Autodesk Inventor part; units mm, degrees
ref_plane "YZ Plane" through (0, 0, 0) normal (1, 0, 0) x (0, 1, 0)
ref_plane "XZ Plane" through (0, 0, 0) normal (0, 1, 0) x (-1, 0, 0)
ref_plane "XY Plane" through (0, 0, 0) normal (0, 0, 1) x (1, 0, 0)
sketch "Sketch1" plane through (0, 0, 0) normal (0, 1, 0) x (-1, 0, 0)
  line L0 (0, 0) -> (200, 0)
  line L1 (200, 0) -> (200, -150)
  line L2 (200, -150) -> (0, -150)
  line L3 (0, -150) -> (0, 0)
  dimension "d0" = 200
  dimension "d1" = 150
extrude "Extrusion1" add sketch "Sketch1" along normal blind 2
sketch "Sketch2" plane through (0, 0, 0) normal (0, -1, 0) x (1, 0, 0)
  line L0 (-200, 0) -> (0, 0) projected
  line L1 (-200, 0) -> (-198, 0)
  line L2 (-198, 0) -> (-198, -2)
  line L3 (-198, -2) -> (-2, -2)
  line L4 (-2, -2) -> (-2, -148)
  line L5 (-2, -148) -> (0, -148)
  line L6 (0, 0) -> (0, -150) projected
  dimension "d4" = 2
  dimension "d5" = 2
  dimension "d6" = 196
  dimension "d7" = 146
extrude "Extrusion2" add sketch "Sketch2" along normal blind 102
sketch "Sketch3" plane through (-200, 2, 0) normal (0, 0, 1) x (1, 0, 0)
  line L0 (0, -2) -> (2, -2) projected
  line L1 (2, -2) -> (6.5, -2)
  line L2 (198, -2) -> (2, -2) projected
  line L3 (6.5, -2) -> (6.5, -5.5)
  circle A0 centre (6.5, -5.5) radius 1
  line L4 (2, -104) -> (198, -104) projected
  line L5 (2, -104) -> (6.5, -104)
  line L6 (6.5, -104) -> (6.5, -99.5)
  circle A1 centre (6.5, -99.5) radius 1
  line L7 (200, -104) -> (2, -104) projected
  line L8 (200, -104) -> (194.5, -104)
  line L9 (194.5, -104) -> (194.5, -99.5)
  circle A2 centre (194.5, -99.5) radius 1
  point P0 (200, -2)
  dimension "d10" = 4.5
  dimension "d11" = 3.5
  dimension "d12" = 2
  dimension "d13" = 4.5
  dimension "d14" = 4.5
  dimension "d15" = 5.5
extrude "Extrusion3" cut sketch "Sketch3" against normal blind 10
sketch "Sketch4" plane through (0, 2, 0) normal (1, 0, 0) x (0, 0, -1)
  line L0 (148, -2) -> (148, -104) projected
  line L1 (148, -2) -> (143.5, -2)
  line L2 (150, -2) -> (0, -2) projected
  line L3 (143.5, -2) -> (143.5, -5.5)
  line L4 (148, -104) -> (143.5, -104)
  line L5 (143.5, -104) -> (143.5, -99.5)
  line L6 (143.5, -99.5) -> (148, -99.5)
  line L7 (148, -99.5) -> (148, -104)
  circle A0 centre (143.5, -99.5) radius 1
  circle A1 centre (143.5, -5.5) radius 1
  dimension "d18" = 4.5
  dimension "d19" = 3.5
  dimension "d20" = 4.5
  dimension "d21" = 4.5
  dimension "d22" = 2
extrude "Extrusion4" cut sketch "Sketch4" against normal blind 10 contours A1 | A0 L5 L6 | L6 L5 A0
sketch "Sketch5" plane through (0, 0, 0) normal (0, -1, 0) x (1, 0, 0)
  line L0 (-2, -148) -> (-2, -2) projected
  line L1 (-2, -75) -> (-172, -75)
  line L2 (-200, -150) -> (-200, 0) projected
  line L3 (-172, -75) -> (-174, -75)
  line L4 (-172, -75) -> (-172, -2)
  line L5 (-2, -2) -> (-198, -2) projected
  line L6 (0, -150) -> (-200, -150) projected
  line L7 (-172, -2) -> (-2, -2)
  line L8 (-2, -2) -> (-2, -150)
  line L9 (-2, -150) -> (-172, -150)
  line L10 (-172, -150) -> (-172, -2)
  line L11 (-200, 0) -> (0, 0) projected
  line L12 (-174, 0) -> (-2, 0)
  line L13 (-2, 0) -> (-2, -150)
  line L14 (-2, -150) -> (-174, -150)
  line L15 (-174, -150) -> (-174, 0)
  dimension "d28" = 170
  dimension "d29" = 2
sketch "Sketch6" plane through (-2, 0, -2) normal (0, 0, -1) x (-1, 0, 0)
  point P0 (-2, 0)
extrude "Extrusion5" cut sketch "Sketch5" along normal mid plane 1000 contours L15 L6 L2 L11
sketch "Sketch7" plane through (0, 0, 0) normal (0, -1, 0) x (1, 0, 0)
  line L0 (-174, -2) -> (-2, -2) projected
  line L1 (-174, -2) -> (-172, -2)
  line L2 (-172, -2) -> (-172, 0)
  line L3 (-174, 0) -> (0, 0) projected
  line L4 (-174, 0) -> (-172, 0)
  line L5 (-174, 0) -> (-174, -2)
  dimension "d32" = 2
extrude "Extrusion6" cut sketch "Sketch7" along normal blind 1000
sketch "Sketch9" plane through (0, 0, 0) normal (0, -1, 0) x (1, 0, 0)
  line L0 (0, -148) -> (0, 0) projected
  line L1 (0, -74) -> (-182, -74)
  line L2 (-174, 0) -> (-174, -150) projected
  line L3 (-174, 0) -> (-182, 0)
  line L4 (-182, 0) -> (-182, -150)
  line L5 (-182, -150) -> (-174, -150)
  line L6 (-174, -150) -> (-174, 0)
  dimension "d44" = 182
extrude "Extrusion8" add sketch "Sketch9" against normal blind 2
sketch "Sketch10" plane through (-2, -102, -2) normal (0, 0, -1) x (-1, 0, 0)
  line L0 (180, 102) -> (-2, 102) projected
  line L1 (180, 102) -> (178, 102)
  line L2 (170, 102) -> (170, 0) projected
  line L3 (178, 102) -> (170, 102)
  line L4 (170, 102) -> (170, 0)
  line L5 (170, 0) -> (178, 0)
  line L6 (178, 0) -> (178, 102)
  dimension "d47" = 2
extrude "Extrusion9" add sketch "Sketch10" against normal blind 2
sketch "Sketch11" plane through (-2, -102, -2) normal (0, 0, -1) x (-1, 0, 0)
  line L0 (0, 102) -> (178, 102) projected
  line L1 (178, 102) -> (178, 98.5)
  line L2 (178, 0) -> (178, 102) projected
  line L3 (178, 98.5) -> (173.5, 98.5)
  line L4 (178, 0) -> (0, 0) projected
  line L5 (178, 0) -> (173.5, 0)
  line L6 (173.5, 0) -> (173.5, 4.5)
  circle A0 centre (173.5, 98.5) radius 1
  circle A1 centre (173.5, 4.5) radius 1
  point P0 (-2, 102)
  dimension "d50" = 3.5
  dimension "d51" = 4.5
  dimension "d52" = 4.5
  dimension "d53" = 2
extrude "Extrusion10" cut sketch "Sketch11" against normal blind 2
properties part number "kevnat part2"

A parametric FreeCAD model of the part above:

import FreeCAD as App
import Part
import Sketcher

V = App.Vector
Q = App.Units.Quantity


def add_polygon(sketch, points):
    """Adds a closed chain of lines whose ends are joined by coincident constraints."""
    first, n = sketch.GeometryCount, len(points)
    for a, b in zip(points, points[1:] + points[:1]):
        sketch.addGeometry(Part.LineSegment(App.Vector(*a, 0), App.Vector(*b, 0)), False)
    for i in range(n):
        sketch.addConstraint(Sketcher.Constraint("Coincident", first + i, 2, first + (i + 1) % n, 1))

doc = App.newDocument("Part")
body = doc.addObject("PartDesign::Body", "Body")

sketch1 = body.newObject("Sketcher::SketchObject", "Sketch")
sketch1.AttachmentSupport = (doc.getObject("XZ_Plane"), [""])
sketch1.MapMode = "FlatFace"
add_polygon(sketch1, [(-200, 0), (0, 0), (0, -150), (-200, -150)])
sketch1.addConstraint(Sketcher.Constraint("Horizontal", 0))
sketch1.addConstraint(Sketcher.Constraint("Vertical", 1))
sketch1.addConstraint(Sketcher.Constraint("Horizontal", 2))
sketch1.addConstraint(Sketcher.Constraint("Vertical", 3))
sketch1.addConstraint(Sketcher.Constraint("Coincident", 0, 2, -1, 1))
sketch1.addConstraint(Sketcher.Constraint("DistanceX", 0, 1, 0, 2, Q("200 mm")))
sketch1.addConstraint(Sketcher.Constraint("DistanceY", 1, 2, 1, 1, Q("150 mm")))
pad1 = body.newObject("PartDesign::Pad", "Pad")
pad1.Profile = sketch1
pad1.Length = 2
pad1.Reversed = True

sketch2 = body.newObject("Sketcher::SketchObject", "Sketch001")
sketch2.AttachmentSupport = (doc.getObject("XZ_Plane"), [""])
sketch2.MapMode = "FlatFace"
add_polygon(sketch2, [(0, 0), (-198, 0), (-198, -2), (-2, -2), (-2, -148), (0, -148)])
sketch2.addConstraint(Sketcher.Constraint("Horizontal", 0))
sketch2.addConstraint(Sketcher.Constraint("Vertical", 1))
sketch2.addConstraint(Sketcher.Constraint("Horizontal", 2))
sketch2.addConstraint(Sketcher.Constraint("Vertical", 3))
sketch2.addConstraint(Sketcher.Constraint("Horizontal", 4))
sketch2.addConstraint(Sketcher.Constraint("Vertical", 5))
sketch2.addConstraint(Sketcher.Constraint("Coincident", 5, 2, -1, 1))
sketch2.addConstraint(Sketcher.Constraint("Equal", 4, 1))
sketch2.addConstraint(Sketcher.Constraint("DistanceX", 2, 1, 2, 2, Q("196 mm")))
sketch2.addConstraint(Sketcher.Constraint("DistanceX", 4, 1, 4, 2, Q("2 mm")))
sketch2.addConstraint(Sketcher.Constraint("DistanceY", 3, 2, 3, 1, Q("146 mm")))
pad2 = body.newObject("PartDesign::Pad", "Pad001")
pad2.Profile = sketch2
pad2.Length = 102

sketch3 = body.newObject("Sketcher::SketchObject", "Sketch002")
sketch3.AttachmentSupport = (doc.getObject("XY_Plane"), [""])
sketch3.MapMode = "FlatFace"
sketch3.addGeometry(Part.Circle(V(-193.5, -3.5, 0), V(0, 0, 1), 1), False)
sketch3.addGeometry(Part.Circle(V(-5.5, -97.5, 0), V(0, 0, 1), 1), False)
sketch3.addGeometry(Part.Circle(V(-193.5, -97.5, 0), V(0, 0, 1), 1), False)
sketch3.addConstraint(Sketcher.Constraint("Equal", 0, 1))
sketch3.addConstraint(Sketcher.Constraint("Equal", 1, 2))
sketch3.addConstraint(Sketcher.Constraint("Horizontal", 1, 3, 2, 3))
sketch3.addConstraint(Sketcher.Constraint("Vertical", 0, 3, 2, 3))
sketch3.addConstraint(Sketcher.Constraint("Diameter", 0, Q("2 mm")))
sketch3.addConstraint(Sketcher.Constraint("DistanceY", 0, 3, -1, 1, Q("3.5 mm")))
sketch3.addConstraint(Sketcher.Constraint("DistanceX", 1, 3, -1, 1, Q("5.5 mm")))
sketch3.addConstraint(Sketcher.Constraint("DistanceX", 0, 3, 1, 3, Q("188 mm")))
sketch3.addConstraint(Sketcher.Constraint("DistanceY", 1, 3, 0, 3, Q("94 mm")))
pocket1 = body.newObject("PartDesign::Pocket", "Pocket")
pocket1.Profile = sketch3
pocket1.Length = 10

sketch4 = body.newObject("Sketcher::SketchObject", "Sketch003")
sketch4.AttachmentSupport = (doc.getObject("YZ_Plane"), [""])
sketch4.MapMode = "FlatFace"
sketch4.addGeometry(Part.Circle(V(-3.5, -143.5, 0), V(0, 0, 1), 1), False)
sketch4.addGeometry(Part.Circle(V(-97.5, -143.5, 0), V(0, 0, 1), 1), False)
sketch4.addConstraint(Sketcher.Constraint("Equal", 0, 1))
sketch4.addConstraint(Sketcher.Constraint("Horizontal", 0, 3, 1, 3))
sketch4.addConstraint(Sketcher.Constraint("Diameter", 0, Q("2 mm")))
sketch4.addConstraint(Sketcher.Constraint("DistanceX", 0, 3, -1, 1, Q("3.5 mm")))
sketch4.addConstraint(Sketcher.Constraint("DistanceX", 1, 3, 0, 3, Q("94 mm")))
sketch4.addConstraint(Sketcher.Constraint("DistanceY", 0, 3, -1, 1, Q("143.5 mm")))
pocket2 = body.newObject("PartDesign::Pocket", "Pocket001")
pocket2.Profile = sketch4
pocket2.Length = 10

sketch5 = body.newObject("Sketcher::SketchObject", "Sketch004")
sketch5.AttachmentSupport = (doc.getObject("XZ_Plane"), [""])
sketch5.MapMode = "FlatFace"
add_polygon(sketch5, [(-174, -150), (-174, 0), (-200, 0), (-200, -150)])
sketch5.addConstraint(Sketcher.Constraint("Vertical", 0))
sketch5.addConstraint(Sketcher.Constraint("Horizontal", 1))
sketch5.addConstraint(Sketcher.Constraint("Vertical", 2))
sketch5.addConstraint(Sketcher.Constraint("Horizontal", 3))
sketch5.addConstraint(Sketcher.Constraint("PointOnObject", 0, 2, -1))
sketch5.addConstraint(Sketcher.Constraint("DistanceX", 1, 2, 1, 1, Q("26 mm")))
sketch5.addConstraint(Sketcher.Constraint("DistanceY", 0, 1, 0, 2, Q("150 mm")))
sketch5.addConstraint(Sketcher.Constraint("DistanceX", 0, 2, -1, 1, Q("174 mm")))
pocket3 = body.newObject("PartDesign::Pocket", "Pocket002")
pocket3.Profile = sketch5
pocket3.Length = 1000
pocket3.Midplane = True

sketch6 = body.newObject("Sketcher::SketchObject", "Sketch005")
sketch6.AttachmentSupport = (doc.getObject("XZ_Plane"), [""])
sketch6.MapMode = "FlatFace"
add_polygon(sketch6, [(-174, 0), (-174, -2), (-172, -2), (-172, 0)])
sketch6.addConstraint(Sketcher.Constraint("Vertical", 0))
sketch6.addConstraint(Sketcher.Constraint("Horizontal", 1))
sketch6.addConstraint(Sketcher.Constraint("Vertical", 2))
sketch6.addConstraint(Sketcher.Constraint("Horizontal", 3))
sketch6.addConstraint(Sketcher.Constraint("PointOnObject", 2, 2, -1))
sketch6.addConstraint(Sketcher.Constraint("Equal", 3, 0))
sketch6.addConstraint(Sketcher.Constraint("DistanceX", 1, 1, 1, 2, Q("2 mm")))
sketch6.addConstraint(Sketcher.Constraint("DistanceX", 0, 2, -1, 1, Q("174 mm")))
pocket4 = body.newObject("PartDesign::Pocket", "Pocket003")
pocket4.Profile = sketch6
pocket4.Length = 1000
pocket4.Reversed = True

sketch7 = body.newObject("Sketcher::SketchObject", "Sketch006")
sketch7.AttachmentSupport = (doc.getObject("XZ_Plane"), [""])
sketch7.MapMode = "FlatFace"
add_polygon(sketch7, [(-174, -150), (-174, 0), (-182, 0), (-182, -150)])
sketch7.addConstraint(Sketcher.Constraint("Vertical", 0))
sketch7.addConstraint(Sketcher.Constraint("Horizontal", 1))
sketch7.addConstraint(Sketcher.Constraint("Vertical", 2))
sketch7.addConstraint(Sketcher.Constraint("Horizontal", 3))
sketch7.addConstraint(Sketcher.Constraint("PointOnObject", 0, 2, -1))
sketch7.addConstraint(Sketcher.Constraint("DistanceX", 1, 2, -1, 1, Q("182 mm")))
sketch7.addConstraint(Sketcher.Constraint("DistanceX", 1, 2, 1, 1, Q("8 mm")))
sketch7.addConstraint(Sketcher.Constraint("DistanceY", 0, 1, 0, 2, Q("150 mm")))
pad3 = body.newObject("PartDesign::Pad", "Pad002")
pad3.Profile = sketch7
pad3.Length = 2
pad3.Reversed = True

sketch8 = body.newObject("Sketcher::SketchObject", "Sketch007")
sketch8.AttachmentSupport = (doc.getObject("XY_Plane"), [""])
sketch8.MapMode = "FlatFace"
sketch8.AttachmentOffset = App.Placement(V(0, 0, -2), App.Rotation())
add_polygon(sketch8, [(-180, -102), (-180, 0), (-172, 0), (-172, -102)])
sketch8.addConstraint(Sketcher.Constraint("Vertical", 0))
sketch8.addConstraint(Sketcher.Constraint("Horizontal", 1))
sketch8.addConstraint(Sketcher.Constraint("Vertical", 2))
sketch8.addConstraint(Sketcher.Constraint("Horizontal", 3))
sketch8.addConstraint(Sketcher.Constraint("PointOnObject", 0, 2, -1))
sketch8.addConstraint(Sketcher.Constraint("DistanceX", 1, 1, 1, 2, Q("8 mm")))
sketch8.addConstraint(Sketcher.Constraint("DistanceY", 0, 1, 0, 2, Q("102 mm")))
sketch8.addConstraint(Sketcher.Constraint("DistanceX", 0, 2, -1, 1, Q("180 mm")))
pad4 = body.newObject("PartDesign::Pad", "Pad003")
pad4.Profile = sketch8
pad4.Length = 2

sketch9 = body.newObject("Sketcher::SketchObject", "Sketch008")
sketch9.AttachmentSupport = (doc.getObject("XY_Plane"), [""])
sketch9.MapMode = "FlatFace"
sketch9.AttachmentOffset = App.Placement(V(0, 0, -2), App.Rotation())
sketch9.addGeometry(Part.Circle(V(-175.5, -3.5, 0), V(0, 0, 1), 1), False)
sketch9.addGeometry(Part.Circle(V(-175.5, -97.5, 0), V(0, 0, 1), 1), False)
sketch9.addConstraint(Sketcher.Constraint("Equal", 0, 1))
sketch9.addConstraint(Sketcher.Constraint("Vertical", 0, 3, 1, 3))
sketch9.addConstraint(Sketcher.Constraint("Diameter", 0, Q("2 mm")))
sketch9.addConstraint(Sketcher.Constraint("DistanceY", 0, 3, -1, 1, Q("3.5 mm")))
sketch9.addConstraint(Sketcher.Constraint("DistanceY", 1, 3, 0, 3, Q("94 mm")))
sketch9.addConstraint(Sketcher.Constraint("DistanceX", 0, 3, -1, 1, Q("175.5 mm")))
pocket5 = body.newObject("PartDesign::Pocket", "Pocket004")
pocket5.Profile = sketch9
pocket5.Length = 2
pocket5.Reversed = True

doc.recompute()
